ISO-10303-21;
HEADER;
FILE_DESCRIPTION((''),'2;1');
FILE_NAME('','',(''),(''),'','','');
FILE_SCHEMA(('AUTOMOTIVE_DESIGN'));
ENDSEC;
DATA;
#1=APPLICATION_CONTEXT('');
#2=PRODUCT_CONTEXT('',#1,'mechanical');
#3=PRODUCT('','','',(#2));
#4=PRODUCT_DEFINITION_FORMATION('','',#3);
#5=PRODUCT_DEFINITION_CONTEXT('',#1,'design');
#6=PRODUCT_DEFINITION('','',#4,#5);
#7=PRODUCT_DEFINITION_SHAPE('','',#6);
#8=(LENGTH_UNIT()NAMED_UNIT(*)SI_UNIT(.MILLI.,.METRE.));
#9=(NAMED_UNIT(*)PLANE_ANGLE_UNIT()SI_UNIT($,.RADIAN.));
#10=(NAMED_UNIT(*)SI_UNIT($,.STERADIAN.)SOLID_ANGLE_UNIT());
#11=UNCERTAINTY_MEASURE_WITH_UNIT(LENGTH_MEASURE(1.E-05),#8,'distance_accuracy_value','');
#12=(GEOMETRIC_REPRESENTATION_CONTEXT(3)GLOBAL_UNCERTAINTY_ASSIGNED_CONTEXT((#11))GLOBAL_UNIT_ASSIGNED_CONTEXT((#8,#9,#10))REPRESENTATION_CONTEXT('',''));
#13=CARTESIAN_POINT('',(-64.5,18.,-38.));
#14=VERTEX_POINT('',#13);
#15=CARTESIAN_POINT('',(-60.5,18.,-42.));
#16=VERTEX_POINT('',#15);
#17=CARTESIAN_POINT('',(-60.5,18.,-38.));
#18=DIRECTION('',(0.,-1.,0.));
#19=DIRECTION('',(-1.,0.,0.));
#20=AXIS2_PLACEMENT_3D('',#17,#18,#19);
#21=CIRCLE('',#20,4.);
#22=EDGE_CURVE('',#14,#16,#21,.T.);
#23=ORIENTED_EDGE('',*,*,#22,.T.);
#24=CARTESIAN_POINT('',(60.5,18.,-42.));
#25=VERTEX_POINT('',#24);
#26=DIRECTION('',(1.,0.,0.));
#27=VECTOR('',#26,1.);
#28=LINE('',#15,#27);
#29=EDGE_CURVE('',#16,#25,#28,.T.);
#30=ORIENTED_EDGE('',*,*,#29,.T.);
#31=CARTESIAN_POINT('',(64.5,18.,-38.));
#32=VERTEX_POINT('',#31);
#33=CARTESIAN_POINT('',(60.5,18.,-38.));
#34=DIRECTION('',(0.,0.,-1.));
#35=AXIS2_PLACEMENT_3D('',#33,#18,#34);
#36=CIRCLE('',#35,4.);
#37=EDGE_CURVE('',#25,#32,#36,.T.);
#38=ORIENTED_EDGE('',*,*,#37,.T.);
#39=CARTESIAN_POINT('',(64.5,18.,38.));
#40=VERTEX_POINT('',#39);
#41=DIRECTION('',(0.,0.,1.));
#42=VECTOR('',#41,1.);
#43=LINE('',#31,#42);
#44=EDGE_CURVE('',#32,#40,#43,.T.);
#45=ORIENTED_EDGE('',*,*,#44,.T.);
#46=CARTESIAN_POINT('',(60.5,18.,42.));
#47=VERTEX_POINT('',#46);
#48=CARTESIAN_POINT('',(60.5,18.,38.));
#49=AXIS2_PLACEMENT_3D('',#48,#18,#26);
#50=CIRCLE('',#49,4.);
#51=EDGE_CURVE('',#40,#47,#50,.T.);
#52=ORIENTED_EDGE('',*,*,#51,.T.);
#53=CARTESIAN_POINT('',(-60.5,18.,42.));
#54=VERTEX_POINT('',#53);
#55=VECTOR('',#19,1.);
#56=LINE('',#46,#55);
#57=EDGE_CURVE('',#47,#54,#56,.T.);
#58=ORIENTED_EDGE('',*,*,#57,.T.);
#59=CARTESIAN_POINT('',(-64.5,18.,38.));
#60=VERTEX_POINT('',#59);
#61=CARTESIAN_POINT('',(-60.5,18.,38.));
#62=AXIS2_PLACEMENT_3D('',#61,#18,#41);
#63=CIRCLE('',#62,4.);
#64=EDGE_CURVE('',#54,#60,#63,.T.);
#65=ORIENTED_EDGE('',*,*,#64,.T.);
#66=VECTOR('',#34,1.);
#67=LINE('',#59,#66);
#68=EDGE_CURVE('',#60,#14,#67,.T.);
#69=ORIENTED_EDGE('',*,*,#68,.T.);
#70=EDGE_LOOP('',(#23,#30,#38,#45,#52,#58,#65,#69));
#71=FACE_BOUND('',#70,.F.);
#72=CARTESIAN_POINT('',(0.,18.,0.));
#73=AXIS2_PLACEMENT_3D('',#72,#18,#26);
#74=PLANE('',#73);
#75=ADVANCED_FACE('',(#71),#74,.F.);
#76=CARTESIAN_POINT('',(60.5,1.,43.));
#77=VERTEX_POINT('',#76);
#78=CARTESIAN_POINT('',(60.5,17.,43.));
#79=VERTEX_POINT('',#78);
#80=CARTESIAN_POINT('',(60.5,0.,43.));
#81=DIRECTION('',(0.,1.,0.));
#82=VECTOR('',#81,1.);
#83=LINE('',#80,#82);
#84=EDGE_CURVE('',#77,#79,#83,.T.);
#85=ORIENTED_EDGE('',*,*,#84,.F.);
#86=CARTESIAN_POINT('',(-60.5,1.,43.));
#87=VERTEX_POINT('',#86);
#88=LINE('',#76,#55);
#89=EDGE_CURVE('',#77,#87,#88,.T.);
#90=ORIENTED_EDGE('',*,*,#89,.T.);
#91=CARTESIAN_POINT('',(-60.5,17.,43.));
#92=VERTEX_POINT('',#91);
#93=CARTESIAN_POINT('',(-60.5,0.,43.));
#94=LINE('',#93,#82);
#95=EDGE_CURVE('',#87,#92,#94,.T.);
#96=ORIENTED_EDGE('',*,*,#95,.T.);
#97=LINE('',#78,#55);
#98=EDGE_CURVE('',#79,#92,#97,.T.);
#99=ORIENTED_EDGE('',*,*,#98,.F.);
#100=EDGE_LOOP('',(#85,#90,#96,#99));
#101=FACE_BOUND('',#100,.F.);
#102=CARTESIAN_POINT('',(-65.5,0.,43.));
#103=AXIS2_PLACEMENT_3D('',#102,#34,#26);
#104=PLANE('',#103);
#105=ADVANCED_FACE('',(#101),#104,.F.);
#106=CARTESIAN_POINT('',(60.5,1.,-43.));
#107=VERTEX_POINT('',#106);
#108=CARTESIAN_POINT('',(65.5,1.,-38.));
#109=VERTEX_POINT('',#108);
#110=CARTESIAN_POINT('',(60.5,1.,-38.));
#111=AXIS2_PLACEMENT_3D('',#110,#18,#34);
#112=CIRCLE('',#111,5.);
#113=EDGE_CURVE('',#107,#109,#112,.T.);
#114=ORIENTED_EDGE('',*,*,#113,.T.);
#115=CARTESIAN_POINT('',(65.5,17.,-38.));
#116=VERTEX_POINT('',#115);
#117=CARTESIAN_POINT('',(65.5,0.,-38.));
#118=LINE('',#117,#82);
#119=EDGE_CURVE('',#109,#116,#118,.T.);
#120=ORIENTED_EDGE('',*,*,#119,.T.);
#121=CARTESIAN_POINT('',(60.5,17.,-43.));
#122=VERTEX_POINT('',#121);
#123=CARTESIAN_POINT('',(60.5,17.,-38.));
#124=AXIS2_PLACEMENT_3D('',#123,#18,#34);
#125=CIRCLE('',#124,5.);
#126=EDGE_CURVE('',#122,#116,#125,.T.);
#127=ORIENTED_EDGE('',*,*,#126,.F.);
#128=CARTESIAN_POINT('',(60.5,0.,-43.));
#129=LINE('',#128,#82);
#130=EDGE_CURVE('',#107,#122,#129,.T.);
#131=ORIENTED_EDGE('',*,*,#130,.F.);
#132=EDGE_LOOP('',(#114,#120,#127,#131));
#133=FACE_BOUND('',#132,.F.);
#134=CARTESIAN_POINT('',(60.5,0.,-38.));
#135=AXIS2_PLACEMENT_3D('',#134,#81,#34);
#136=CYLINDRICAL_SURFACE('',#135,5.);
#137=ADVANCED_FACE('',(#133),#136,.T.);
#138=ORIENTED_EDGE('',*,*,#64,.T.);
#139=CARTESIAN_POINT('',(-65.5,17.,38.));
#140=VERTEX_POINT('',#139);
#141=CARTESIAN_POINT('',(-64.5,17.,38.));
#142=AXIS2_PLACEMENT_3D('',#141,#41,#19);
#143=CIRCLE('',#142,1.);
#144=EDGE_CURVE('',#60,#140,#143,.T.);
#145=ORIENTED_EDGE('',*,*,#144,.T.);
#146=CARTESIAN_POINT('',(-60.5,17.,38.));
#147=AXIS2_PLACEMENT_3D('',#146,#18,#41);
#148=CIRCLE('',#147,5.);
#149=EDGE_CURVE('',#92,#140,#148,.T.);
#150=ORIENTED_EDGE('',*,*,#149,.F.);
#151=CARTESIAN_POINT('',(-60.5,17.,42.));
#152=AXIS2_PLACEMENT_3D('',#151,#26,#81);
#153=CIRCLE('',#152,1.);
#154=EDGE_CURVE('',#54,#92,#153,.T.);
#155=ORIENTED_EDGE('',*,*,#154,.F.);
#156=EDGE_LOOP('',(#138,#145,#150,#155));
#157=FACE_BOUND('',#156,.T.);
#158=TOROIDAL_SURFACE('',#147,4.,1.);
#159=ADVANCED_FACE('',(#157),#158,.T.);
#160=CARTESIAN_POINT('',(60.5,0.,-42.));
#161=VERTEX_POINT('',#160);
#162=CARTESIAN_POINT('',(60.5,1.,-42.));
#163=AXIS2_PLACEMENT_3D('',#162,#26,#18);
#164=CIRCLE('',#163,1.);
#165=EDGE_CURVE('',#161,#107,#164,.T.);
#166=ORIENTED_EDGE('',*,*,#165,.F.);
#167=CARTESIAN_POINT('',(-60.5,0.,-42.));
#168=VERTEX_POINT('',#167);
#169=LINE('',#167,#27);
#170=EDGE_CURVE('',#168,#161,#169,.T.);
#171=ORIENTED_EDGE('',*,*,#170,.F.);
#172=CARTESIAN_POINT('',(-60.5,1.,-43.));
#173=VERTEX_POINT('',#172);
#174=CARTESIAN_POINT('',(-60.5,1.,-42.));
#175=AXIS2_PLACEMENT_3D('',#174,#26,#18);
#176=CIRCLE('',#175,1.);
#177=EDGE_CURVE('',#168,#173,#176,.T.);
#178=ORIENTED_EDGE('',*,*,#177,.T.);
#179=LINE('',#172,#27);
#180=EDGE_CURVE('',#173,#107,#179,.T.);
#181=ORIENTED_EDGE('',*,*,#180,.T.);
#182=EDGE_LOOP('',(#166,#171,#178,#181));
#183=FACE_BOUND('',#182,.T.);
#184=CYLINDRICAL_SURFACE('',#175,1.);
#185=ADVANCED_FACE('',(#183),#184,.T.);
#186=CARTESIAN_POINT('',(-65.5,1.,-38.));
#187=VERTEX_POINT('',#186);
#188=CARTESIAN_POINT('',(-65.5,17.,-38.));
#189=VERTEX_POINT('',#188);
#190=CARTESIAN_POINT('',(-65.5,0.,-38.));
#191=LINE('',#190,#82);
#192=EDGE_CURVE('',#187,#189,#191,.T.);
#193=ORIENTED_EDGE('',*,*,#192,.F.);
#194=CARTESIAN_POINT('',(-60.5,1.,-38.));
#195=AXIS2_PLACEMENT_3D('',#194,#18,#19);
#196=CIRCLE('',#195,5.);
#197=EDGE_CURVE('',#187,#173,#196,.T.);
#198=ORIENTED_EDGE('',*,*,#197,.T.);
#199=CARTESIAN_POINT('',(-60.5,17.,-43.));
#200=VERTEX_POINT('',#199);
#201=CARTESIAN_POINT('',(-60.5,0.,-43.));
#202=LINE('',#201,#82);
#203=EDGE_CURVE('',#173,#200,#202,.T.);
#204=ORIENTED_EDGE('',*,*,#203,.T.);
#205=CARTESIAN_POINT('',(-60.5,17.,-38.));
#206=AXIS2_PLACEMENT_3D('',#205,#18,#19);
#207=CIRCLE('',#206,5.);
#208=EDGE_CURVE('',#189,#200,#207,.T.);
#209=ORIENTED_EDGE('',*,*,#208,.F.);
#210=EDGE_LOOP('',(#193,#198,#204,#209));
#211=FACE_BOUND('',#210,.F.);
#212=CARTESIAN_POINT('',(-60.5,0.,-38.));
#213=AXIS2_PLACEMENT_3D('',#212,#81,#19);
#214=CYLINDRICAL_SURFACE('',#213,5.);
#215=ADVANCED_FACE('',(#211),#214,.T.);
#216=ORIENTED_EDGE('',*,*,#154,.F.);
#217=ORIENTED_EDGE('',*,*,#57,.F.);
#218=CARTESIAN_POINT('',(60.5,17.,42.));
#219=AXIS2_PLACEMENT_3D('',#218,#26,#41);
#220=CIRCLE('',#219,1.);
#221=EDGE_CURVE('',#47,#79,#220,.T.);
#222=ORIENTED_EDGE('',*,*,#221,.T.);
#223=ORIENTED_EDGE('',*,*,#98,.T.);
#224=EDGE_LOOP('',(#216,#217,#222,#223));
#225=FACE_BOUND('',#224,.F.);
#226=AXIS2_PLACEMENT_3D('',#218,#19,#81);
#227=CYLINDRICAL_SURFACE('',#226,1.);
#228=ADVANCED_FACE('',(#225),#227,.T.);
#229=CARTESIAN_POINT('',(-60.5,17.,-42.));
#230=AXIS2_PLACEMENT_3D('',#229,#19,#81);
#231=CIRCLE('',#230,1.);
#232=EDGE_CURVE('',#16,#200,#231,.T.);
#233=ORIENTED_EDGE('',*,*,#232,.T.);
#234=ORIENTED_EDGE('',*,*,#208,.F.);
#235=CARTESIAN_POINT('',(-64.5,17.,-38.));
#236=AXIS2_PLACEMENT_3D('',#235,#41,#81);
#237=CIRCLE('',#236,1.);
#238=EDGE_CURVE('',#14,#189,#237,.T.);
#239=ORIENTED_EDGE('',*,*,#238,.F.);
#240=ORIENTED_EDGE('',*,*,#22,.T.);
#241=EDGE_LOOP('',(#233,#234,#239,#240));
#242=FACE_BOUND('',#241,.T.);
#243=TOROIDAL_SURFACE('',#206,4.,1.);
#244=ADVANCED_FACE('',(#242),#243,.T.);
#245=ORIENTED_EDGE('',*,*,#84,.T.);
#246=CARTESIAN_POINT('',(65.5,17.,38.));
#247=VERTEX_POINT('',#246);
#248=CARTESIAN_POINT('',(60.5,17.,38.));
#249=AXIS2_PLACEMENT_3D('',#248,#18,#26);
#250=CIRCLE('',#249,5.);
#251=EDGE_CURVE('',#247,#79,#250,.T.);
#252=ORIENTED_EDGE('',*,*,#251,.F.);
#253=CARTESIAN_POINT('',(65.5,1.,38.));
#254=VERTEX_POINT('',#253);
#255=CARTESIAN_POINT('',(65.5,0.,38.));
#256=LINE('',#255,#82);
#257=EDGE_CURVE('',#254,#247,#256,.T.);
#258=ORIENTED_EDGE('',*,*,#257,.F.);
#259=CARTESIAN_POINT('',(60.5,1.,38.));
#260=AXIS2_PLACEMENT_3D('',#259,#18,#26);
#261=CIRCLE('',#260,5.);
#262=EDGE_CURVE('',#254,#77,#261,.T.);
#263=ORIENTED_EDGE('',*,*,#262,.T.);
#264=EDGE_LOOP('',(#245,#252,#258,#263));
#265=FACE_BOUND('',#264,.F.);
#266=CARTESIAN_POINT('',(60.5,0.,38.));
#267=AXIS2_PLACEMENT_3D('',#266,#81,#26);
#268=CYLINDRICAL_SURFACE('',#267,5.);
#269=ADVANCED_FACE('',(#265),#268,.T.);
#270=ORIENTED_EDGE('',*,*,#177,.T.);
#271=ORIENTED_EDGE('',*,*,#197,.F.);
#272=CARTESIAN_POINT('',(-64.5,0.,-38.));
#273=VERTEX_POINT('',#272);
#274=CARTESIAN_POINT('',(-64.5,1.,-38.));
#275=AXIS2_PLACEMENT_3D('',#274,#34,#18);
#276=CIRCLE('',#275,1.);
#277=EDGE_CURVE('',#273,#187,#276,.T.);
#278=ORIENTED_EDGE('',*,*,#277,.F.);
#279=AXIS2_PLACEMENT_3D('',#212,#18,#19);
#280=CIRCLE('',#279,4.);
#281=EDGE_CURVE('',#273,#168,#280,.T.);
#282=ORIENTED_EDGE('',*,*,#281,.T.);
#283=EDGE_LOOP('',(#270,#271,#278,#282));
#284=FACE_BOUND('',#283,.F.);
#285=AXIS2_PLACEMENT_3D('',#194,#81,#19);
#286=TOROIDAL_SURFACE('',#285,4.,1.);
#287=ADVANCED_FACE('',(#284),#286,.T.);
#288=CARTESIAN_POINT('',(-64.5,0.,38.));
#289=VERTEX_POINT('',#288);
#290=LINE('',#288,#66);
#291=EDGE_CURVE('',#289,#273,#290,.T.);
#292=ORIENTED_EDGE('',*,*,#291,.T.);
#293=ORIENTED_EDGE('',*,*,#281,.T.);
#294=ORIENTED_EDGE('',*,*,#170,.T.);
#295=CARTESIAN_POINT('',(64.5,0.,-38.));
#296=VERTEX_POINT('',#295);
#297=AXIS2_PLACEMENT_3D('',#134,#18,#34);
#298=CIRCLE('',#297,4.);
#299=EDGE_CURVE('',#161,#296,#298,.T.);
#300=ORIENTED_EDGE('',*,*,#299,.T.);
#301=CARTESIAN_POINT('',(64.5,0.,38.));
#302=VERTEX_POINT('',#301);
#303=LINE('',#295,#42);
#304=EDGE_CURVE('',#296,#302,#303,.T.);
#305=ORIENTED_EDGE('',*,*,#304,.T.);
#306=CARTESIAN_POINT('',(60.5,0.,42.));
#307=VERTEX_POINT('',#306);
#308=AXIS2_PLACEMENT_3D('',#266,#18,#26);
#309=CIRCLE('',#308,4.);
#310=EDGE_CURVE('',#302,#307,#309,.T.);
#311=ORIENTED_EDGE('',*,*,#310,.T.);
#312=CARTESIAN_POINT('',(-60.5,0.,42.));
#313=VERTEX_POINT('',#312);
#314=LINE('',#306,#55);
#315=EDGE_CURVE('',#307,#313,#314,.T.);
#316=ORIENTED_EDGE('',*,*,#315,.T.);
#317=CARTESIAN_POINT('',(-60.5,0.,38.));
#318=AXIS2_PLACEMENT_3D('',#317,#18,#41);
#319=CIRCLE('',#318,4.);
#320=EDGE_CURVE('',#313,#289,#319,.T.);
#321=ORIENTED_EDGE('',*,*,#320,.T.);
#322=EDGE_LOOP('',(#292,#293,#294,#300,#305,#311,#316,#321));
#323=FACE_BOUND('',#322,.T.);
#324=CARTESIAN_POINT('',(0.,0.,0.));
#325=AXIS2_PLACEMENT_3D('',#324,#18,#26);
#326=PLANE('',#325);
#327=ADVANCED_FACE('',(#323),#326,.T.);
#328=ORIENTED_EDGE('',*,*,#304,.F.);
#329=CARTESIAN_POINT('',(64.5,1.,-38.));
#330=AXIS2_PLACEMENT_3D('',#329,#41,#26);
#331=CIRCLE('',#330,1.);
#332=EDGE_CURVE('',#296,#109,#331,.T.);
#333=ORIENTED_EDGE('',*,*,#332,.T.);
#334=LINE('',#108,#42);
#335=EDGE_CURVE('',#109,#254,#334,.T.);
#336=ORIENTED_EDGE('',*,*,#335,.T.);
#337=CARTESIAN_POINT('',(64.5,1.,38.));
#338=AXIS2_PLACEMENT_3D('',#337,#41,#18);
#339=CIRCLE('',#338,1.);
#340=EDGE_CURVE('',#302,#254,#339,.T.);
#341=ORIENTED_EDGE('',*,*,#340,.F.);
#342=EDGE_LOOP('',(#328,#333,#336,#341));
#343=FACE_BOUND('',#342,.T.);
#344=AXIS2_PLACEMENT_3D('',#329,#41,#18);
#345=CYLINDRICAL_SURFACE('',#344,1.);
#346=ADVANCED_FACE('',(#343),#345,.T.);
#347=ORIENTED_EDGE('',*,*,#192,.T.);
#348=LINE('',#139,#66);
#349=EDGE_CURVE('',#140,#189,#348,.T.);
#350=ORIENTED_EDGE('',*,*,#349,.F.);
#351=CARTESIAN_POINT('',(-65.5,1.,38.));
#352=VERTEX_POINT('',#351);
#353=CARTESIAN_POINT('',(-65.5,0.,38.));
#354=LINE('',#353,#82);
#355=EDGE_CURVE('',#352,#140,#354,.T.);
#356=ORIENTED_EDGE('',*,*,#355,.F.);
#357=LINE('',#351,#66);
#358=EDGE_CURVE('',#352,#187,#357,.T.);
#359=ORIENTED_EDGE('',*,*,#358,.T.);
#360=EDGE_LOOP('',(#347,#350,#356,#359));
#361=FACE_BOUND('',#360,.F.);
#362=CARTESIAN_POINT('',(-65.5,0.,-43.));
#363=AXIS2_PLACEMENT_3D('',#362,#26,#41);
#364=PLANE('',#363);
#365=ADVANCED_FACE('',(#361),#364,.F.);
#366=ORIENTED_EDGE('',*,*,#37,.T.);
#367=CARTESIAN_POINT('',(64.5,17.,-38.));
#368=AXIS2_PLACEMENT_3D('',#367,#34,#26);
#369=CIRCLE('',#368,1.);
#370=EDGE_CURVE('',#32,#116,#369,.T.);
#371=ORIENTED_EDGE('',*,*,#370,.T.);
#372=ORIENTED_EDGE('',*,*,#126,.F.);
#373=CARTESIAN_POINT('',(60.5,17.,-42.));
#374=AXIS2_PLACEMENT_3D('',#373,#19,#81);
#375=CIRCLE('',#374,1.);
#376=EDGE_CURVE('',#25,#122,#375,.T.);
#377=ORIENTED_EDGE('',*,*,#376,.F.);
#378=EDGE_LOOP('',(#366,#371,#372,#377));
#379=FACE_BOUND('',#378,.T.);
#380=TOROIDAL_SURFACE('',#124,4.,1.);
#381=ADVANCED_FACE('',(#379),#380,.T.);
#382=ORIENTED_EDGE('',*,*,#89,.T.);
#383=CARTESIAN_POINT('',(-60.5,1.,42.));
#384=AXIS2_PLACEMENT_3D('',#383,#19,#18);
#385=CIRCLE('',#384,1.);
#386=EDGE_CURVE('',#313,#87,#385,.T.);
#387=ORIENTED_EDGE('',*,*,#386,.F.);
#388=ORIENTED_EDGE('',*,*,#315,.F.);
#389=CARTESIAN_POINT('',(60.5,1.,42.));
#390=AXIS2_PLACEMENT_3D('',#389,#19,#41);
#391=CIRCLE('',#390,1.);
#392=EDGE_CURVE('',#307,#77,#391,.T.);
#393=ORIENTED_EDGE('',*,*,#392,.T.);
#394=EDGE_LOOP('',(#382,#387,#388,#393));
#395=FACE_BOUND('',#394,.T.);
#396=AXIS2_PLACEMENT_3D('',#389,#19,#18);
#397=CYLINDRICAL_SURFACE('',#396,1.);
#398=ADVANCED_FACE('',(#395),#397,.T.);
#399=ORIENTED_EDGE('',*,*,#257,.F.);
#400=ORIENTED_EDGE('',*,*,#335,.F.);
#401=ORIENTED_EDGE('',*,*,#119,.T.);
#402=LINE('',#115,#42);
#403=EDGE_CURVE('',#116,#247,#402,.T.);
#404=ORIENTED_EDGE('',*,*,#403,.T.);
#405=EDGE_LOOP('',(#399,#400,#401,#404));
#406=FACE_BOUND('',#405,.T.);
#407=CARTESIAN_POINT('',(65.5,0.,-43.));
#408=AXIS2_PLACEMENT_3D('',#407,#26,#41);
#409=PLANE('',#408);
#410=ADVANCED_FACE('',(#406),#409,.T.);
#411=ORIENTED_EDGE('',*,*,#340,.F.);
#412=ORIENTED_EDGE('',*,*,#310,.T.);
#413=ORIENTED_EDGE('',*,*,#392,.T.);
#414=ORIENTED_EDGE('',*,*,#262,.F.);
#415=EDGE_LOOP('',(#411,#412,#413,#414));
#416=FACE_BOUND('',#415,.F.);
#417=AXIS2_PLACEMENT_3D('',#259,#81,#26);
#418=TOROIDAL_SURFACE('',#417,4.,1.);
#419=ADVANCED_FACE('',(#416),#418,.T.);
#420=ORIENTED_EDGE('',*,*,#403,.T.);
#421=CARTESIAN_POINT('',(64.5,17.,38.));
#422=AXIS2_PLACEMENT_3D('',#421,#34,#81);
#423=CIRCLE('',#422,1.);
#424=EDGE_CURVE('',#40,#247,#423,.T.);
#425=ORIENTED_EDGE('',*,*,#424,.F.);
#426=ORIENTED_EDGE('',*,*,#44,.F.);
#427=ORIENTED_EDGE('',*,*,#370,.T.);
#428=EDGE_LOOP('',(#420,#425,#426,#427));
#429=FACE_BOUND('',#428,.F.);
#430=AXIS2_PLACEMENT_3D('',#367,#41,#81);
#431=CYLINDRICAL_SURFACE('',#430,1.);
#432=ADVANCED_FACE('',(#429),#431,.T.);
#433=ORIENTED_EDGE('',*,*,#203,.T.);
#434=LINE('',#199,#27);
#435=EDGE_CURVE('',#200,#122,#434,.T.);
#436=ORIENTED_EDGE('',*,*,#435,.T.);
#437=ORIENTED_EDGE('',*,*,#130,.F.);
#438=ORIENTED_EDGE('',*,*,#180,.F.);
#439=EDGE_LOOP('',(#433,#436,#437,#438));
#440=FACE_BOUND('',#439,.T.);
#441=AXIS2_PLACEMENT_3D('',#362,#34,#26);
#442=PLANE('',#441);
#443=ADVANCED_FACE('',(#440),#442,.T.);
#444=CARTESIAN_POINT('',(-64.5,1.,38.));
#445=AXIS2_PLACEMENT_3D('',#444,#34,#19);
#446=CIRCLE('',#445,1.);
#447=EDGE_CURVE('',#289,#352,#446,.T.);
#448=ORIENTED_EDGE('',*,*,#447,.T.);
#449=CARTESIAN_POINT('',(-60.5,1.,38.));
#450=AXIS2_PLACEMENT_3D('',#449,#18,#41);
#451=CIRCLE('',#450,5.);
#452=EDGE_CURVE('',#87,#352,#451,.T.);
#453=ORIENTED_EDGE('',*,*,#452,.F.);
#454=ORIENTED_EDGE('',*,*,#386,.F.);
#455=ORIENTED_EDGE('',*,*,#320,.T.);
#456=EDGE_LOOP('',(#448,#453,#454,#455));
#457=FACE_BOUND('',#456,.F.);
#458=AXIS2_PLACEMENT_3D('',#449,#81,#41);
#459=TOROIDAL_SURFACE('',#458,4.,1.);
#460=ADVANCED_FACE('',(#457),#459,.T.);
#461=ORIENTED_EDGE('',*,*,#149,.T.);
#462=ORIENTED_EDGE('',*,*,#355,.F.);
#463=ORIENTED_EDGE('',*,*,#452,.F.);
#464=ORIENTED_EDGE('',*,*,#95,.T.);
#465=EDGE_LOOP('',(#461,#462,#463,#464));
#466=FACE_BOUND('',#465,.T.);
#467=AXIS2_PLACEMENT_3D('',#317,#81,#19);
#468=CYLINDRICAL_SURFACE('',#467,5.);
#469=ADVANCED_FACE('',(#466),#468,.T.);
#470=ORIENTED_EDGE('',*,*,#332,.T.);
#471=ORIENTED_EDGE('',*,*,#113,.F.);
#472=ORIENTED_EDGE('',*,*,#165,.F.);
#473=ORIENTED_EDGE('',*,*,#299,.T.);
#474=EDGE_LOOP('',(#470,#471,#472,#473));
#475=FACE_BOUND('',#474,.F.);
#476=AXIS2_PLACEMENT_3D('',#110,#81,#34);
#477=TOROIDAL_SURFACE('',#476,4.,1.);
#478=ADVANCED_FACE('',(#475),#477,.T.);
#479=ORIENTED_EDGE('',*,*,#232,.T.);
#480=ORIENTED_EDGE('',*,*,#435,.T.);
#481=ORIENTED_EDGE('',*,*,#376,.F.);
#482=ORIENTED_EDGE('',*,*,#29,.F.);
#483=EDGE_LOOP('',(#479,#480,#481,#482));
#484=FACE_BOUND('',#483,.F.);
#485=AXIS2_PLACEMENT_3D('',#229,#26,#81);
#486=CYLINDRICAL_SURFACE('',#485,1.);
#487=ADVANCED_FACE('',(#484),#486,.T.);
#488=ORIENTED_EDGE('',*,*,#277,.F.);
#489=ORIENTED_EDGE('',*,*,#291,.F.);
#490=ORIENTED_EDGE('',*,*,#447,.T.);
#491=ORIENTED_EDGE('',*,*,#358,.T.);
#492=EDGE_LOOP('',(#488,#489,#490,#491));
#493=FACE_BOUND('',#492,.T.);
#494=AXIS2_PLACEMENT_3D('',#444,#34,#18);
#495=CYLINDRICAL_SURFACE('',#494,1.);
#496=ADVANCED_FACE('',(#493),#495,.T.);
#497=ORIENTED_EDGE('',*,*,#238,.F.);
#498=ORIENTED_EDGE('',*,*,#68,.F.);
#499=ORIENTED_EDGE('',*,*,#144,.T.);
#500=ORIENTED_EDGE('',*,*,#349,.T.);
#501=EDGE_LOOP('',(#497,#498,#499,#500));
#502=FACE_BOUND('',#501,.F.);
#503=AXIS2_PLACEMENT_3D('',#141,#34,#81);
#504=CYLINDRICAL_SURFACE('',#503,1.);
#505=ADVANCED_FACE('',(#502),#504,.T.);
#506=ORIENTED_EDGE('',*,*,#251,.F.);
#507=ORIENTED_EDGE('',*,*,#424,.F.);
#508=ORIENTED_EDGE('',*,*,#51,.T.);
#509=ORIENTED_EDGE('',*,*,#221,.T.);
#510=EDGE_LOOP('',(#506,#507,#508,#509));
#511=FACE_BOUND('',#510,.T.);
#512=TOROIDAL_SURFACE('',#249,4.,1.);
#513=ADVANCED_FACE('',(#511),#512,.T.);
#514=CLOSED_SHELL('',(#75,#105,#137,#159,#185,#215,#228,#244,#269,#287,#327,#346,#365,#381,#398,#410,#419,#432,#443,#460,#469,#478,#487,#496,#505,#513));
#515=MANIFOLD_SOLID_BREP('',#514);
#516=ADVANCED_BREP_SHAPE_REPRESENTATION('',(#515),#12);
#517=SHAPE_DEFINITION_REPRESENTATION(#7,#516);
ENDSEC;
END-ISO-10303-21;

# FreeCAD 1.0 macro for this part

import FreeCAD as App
import Part
import Sketcher
from FreeCAD import Vector
Q = App.Units.Quantity


def edges_at(feature, points):
    """Names of the edges that pass closest to the given points."""
    edges = feature.Shape.Edges
    near = lambda p: min(range(len(edges)), key=lambda i: edges[i].distToShape(Part.Vertex(*p))[0])
    return sorted({f"Edge{near(p) + 1}" for p in points})


def add_polygon(sketch, points):
    """Adds a closed chain of lines whose ends are joined by coincident constraints."""
    first, n = sketch.GeometryCount, len(points)
    for a, b in zip(points, points[1:] + points[:1]):
        sketch.addGeometry(Part.LineSegment(App.Vector(*a, 0), App.Vector(*b, 0)), False)
    for i in range(n):
        sketch.addConstraint(Sketcher.Constraint("Coincident", first + i, 2, first + (i + 1) % n, 1))

doc = App.newDocument("Part")
body = doc.addObject("PartDesign::Body", "Body")

# Sketch on XZ plane
sketch1 = body.newObject("Sketcher::SketchObject", "Sketch")
sketch1.AttachmentSupport = (doc.getObject("XZ_Plane"), [""])
sketch1.MapMode = "FlatFace"
add_polygon(sketch1, [(-66, 43), (-66, -43), (66, -43), (66, 43)])  # lines 0-3
sketch1.addConstraint(Sketcher.Constraint("Vertical", 0))
sketch1.addConstraint(Sketcher.Constraint("Horizontal", 1))
sketch1.addConstraint(Sketcher.Constraint("Vertical", 2))
sketch1.addConstraint(Sketcher.Constraint("Horizontal", 3))
sketch1.addConstraint(Sketcher.Constraint("Symmetric", 0, 2, 2, 2, -1, 1))
sketch1.addConstraint(Sketcher.Constraint("DistanceX", 1, 1, 1, 2, Q("131 mm")))
sketch1.addConstraint(Sketcher.Constraint("DistanceY", 0, 2, 0, 1, Q("86 mm")))
pad1 = body.newObject("PartDesign::Pad", "Pad")
pad1.Profile = sketch1
pad1.Length = 18
pad1.Reversed = True
doc.recompute()

fillet = body.newObject("PartDesign::Fillet", "Fillet")
fillet.Base = (pad1, edges_at(pad1, [
    (-65.5, 9, 43),
    (65.5, 9, 43),
    (65.5, 9, -43),
    (-65.5, 9, -43),
]))
fillet.Radius = 5
doc.recompute()

fillet2 = body.newObject("PartDesign::Fillet", "Fillet001")
fillet2.Base = (fillet, edges_at(fillet, [
    (0, 18, -43),
    (-64.036, 18, -41.536),
    (64.036, 18, -41.536),
    (-65.5, 18, 0),
    (65.5, 18, 0),
    (-64.036, 18, 41.536),
    (64.036, 18, 41.536),
    (0, 18, 43),
    (0, 0, -43),
    (-64.036, 0, -41.536),
    (64.036, 0, -41.536),
    (-65.5, 0, 0),
    (65.5, 0, 0),
    (-64.036, 0, 41.536),
    (64.036, 0, 41.536),
    (0, 0, 43),
]))
fillet2.Radius = 1

doc.recompute()
